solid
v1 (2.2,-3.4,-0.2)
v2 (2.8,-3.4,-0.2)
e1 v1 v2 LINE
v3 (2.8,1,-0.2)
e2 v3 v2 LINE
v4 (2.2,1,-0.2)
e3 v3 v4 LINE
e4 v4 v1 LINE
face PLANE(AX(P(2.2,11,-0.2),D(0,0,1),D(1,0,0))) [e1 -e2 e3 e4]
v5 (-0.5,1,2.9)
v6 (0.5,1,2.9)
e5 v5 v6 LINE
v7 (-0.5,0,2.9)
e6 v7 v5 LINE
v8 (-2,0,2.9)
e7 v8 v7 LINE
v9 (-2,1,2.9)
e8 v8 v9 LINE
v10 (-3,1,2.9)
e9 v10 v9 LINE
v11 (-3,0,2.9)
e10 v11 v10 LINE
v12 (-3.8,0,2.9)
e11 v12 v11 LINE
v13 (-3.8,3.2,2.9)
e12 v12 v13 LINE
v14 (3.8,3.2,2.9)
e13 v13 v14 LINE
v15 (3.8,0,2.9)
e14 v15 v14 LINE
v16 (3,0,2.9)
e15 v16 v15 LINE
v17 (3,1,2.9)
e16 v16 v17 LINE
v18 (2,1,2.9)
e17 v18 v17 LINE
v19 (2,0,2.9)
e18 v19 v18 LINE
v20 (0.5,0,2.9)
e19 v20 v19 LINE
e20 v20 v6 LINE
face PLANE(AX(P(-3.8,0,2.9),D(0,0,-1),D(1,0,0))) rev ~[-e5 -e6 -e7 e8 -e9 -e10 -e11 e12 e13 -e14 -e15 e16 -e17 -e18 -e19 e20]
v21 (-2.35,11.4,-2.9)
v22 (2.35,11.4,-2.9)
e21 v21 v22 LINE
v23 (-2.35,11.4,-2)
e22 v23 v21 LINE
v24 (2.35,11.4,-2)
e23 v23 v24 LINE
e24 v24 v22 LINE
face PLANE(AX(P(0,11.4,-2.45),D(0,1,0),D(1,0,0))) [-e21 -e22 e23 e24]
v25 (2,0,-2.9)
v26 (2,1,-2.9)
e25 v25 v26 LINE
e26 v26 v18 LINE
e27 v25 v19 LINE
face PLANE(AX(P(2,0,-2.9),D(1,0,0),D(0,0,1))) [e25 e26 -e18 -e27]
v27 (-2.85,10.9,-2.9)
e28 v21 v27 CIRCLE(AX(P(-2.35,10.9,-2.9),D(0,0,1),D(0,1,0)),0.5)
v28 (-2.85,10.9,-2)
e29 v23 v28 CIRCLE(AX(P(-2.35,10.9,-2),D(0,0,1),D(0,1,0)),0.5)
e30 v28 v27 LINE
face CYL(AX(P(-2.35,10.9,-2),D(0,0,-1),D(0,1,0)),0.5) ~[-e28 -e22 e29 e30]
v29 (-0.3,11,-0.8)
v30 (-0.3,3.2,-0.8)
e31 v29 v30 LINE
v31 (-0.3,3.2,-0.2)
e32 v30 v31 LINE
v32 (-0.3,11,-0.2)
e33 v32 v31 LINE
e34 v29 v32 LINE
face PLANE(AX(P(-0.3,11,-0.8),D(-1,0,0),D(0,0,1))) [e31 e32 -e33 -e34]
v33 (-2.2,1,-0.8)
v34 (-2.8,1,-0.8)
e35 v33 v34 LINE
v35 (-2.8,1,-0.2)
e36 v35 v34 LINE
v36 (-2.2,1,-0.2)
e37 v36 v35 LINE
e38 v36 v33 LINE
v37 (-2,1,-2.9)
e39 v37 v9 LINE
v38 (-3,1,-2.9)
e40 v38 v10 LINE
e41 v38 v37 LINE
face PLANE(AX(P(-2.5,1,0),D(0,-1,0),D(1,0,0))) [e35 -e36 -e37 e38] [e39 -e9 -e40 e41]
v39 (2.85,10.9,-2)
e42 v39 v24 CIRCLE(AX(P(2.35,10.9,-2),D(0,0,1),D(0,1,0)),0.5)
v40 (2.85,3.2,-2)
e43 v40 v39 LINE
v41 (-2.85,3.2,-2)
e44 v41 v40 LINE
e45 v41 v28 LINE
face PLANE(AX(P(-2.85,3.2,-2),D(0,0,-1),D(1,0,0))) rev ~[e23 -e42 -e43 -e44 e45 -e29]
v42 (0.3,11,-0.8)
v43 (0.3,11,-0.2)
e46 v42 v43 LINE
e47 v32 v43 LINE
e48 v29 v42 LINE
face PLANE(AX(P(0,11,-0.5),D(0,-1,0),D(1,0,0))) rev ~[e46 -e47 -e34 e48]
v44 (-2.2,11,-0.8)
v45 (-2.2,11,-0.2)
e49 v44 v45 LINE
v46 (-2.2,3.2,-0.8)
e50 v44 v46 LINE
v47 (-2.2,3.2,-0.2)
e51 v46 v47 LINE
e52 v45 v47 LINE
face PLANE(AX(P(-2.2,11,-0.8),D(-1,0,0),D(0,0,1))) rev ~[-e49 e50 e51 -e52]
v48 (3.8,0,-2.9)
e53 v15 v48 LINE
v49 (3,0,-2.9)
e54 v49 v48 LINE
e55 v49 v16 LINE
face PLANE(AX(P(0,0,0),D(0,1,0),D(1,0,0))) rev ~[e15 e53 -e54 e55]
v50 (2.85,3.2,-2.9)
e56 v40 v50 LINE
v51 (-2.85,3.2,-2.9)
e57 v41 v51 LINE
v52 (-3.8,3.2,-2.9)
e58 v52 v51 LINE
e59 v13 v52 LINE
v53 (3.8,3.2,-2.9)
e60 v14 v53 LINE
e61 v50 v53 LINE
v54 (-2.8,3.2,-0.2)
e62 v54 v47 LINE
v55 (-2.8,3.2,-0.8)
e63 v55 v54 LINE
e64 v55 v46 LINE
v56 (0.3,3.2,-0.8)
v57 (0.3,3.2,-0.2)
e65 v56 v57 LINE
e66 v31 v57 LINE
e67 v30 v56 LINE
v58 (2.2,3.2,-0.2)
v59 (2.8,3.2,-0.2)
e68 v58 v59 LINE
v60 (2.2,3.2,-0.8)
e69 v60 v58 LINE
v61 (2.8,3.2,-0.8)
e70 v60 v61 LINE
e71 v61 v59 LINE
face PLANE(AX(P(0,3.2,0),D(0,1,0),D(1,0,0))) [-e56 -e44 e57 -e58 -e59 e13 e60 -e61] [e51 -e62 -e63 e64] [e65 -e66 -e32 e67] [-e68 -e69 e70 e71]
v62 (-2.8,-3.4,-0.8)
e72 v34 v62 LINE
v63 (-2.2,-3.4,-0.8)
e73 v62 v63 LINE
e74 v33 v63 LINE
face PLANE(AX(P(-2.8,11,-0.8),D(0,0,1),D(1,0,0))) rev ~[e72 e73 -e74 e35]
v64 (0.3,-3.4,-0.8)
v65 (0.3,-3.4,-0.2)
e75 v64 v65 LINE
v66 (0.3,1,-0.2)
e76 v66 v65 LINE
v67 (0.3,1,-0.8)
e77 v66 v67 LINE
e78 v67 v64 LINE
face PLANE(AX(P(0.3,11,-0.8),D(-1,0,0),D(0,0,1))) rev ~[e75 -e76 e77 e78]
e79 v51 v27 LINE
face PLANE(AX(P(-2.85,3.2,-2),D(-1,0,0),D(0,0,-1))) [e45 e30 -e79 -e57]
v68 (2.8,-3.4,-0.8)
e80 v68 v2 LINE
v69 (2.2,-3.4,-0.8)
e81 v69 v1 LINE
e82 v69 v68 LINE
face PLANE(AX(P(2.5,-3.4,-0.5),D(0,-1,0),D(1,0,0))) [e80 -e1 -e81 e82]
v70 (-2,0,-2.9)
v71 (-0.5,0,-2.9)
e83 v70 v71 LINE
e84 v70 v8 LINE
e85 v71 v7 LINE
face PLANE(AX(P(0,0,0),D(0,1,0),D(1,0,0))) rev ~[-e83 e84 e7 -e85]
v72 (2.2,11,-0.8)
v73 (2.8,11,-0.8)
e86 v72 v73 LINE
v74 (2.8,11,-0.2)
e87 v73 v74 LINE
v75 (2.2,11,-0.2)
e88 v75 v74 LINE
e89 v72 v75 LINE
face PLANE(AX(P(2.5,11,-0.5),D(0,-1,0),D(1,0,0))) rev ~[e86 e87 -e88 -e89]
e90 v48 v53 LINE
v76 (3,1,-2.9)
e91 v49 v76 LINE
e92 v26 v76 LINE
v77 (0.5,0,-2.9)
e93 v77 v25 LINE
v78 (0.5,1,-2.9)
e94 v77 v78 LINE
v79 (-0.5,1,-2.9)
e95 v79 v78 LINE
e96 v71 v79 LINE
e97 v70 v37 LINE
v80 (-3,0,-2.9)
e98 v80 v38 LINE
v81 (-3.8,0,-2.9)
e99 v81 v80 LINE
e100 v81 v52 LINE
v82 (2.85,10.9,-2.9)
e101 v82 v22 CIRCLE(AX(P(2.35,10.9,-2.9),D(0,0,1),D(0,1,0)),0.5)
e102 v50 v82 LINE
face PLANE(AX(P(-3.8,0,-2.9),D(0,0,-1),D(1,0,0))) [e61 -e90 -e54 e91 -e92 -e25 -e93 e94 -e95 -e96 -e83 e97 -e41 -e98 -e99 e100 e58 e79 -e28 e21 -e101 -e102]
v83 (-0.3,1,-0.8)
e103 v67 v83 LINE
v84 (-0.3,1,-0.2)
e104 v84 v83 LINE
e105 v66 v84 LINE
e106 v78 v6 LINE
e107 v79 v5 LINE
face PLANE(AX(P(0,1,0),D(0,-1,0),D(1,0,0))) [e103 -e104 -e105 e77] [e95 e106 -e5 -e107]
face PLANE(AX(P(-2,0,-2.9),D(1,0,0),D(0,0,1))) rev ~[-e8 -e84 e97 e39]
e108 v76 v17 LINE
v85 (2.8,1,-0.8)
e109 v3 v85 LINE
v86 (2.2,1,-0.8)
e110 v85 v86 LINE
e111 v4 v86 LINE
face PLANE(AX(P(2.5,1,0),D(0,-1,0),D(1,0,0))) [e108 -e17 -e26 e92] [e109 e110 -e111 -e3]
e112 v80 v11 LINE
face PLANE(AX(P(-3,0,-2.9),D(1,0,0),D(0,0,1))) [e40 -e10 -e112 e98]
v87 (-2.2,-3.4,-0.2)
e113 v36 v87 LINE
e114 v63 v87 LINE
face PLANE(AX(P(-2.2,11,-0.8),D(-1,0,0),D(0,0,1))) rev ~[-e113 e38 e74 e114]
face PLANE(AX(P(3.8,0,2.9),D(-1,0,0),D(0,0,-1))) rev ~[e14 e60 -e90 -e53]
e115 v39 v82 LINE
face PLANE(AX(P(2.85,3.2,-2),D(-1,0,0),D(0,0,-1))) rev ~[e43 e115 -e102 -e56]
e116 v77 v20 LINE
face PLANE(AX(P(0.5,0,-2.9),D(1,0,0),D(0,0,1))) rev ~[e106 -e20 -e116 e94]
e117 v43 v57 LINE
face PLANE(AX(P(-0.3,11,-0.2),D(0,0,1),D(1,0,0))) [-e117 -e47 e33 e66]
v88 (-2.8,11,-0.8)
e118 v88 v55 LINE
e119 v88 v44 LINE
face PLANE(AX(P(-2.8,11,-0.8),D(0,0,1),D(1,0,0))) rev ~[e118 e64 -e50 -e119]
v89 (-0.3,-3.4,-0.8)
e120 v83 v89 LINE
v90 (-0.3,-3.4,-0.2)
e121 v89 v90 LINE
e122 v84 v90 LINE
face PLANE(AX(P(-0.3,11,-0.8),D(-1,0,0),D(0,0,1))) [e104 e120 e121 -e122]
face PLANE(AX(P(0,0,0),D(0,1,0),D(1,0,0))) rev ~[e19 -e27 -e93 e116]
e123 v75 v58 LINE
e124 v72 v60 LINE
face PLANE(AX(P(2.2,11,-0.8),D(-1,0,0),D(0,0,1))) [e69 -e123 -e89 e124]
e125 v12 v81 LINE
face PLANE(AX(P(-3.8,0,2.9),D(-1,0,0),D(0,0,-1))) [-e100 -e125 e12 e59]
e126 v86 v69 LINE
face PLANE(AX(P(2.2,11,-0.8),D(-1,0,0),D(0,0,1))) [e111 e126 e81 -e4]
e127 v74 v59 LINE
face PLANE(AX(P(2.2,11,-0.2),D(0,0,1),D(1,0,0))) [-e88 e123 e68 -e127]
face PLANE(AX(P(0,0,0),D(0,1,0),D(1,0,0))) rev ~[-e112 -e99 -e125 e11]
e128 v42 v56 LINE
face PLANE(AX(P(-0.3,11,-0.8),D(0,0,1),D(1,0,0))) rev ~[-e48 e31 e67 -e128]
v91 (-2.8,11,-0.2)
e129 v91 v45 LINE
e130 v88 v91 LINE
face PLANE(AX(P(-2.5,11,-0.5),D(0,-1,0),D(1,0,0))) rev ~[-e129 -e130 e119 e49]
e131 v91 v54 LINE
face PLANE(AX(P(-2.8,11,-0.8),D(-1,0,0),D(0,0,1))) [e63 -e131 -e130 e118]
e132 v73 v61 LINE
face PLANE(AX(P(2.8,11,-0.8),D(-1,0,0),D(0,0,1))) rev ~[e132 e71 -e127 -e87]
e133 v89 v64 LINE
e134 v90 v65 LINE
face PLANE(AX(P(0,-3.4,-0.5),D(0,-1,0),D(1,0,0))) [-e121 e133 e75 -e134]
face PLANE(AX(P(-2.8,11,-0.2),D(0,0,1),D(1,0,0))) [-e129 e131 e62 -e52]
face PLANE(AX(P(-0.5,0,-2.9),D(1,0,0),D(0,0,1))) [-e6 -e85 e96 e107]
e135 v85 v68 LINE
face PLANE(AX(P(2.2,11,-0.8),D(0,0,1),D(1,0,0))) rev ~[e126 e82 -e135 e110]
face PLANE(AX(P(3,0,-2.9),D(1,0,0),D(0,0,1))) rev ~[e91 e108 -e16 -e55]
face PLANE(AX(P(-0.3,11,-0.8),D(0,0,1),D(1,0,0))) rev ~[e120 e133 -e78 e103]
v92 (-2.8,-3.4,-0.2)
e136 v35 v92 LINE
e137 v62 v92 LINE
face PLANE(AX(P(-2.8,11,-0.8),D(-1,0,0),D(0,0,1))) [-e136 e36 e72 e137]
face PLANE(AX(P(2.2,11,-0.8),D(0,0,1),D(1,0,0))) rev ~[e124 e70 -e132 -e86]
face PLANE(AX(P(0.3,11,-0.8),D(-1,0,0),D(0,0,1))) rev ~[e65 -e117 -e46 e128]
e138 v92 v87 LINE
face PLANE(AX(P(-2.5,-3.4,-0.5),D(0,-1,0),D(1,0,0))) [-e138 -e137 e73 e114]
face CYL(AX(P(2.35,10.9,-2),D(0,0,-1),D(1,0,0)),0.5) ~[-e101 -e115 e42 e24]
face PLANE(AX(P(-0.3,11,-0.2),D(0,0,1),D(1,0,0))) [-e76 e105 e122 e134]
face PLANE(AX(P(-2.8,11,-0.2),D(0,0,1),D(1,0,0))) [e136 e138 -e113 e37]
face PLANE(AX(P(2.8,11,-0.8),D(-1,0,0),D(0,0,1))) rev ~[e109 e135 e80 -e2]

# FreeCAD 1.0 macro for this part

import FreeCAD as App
import Part
import Sketcher


def edges_at(feature, points):
    """Names of the edges that pass closest to the given points."""
    edges = feature.Shape.Edges
    near = lambda p: min(range(len(edges)), key=lambda i: edges[i].distToShape(Part.Vertex(*p))[0])
    return sorted({f"Edge{near(p) + 1}" for p in points})


def add_polygon(sketch, points):
    """Adds a closed chain of lines whose ends are joined by coincident constraints."""
    first, n = sketch.GeometryCount, len(points)
    for a, b in zip(points, points[1:] + points[:1]):
        sketch.addGeometry(Part.LineSegment(App.Vector(*a, 0), App.Vector(*b, 0)), False)
    for i in range(n):
        sketch.addConstraint(Sketcher.Constraint("Coincident", first + i, 2, first + (i + 1) % n, 1))

doc = App.newDocument("Part")
body = doc.addObject("PartDesign::Body", "Body")

sketch1 = doc.addObject("Sketcher::SketchObject", "Sketch")
body.addObject(sketch1)
sketch1.AttachmentSupport = (doc.XZ_Plane, [""])
sketch1.MapMode = "FlatFace"
add_polygon(sketch1, [(-3.8, -2.9), (-3.8, 2.9), (3.8, 2.9), (3.8, -2.9)])
sketch1.addConstraint([
    Sketcher.Constraint("Vertical", 0),
    Sketcher.Constraint("Horizontal", 1),
    Sketcher.Constraint("Vertical", 2),
    Sketcher.Constraint("Horizontal", 3),
    Sketcher.Constraint("Symmetric", 0, 2, 2, 2, -1, 1),
    Sketcher.Constraint("DistanceX", 1, 1, 1, 2, 7.6),
    Sketcher.Constraint("DistanceY", 0, 1, 0, 2, 5.8),
])
pad1 = doc.addObject("PartDesign::Pad", "Pad")
body.addObject(pad1)
pad1.Profile = sketch1
pad1.Length = 3.2
pad1.Reversed = True

sketch2 = doc.addObject("Sketcher::SketchObject", "Sketch001")
body.addObject(sketch2)
sketch2.AttachmentSupport = (doc.XZ_Plane, [""])
sketch2.MapMode = "FlatFace"
sketch2.AttachmentOffset = App.Placement(App.Vector(0, 0, -3.2), App.Rotation())
add_polygon(sketch2, [(-2.85, -2.9), (-2.85, -2), (2.85, -2), (2.85, -2.9)])
sketch2.addConstraint([
    Sketcher.Constraint("Vertical", 0),
    Sketcher.Constraint("Horizontal", 1),
    Sketcher.Constraint("Vertical", 2),
    Sketcher.Constraint("Horizontal", 3),
    Sketcher.Constraint("DistanceX", 1, 1, 1, 2, 5.7),
    Sketcher.Constraint("DistanceY", 0, 1, 0, 2, 0.9),
    Sketcher.Constraint("DistanceY", 0, 2, -1, 1, 2.0),
    Sketcher.Constraint("DistanceX", 0, 2, -1, 1, 2.85),
])
pad2 = doc.addObject("PartDesign::Pad", "Pad001")
body.addObject(pad2)
pad2.Profile = sketch2
pad2.Length = 8.2
pad2.Reversed = True
doc.recompute()

fillet = doc.addObject("PartDesign::Fillet", "Fillet")
body.addObject(fillet)
fillet.Base = (pad2, edges_at(pad2, [(2.85, 11.4, -2.45)]))
fillet.Radius = 0.5
doc.recompute()

fillet2 = doc.addObject("PartDesign::Fillet", "Fillet001")
body.addObject(fillet2)
fillet2.Base = (fillet, edges_at(fillet, [(-2.85, 11.4, -2.45)]))
fillet2.Radius = 0.5

sketch3 = doc.addObject("Sketcher::SketchObject", "Sketch002")
body.addObject(sketch3)
sketch3.AttachmentSupport = (doc.XZ_Plane, [""])
sketch3.MapMode = "FlatFace"
add_polygon(sketch3, [(-3, 2.9), (-3, -2.9), (-2, -2.9), (-2, 2.9)])
add_polygon(sketch3, [(-0.5, 2.9), (-0.5, -2.9), (0.5, -2.9), (0.5, 2.9)])
add_polygon(sketch3, [(2, 2.9), (2, -2.9), (3, -2.9), (3, 2.9)])
sketch3.addConstraint([
    Sketcher.Constraint("Vertical", 0),
    Sketcher.Constraint("Horizontal", 1),
    Sketcher.Constraint("Vertical", 2),
    Sketcher.Constraint("Horizontal", 3),
    Sketcher.Constraint("Vertical", 4),
    Sketcher.Constraint("Horizontal", 5),
    Sketcher.Constraint("Vertical", 6),
    Sketcher.Constraint("Horizontal", 7),
    Sketcher.Constraint("Vertical", 8),
    Sketcher.Constraint("Horizontal", 9),
    Sketcher.Constraint("Vertical", 10),
    Sketcher.Constraint("Horizontal", 11),
    Sketcher.Constraint("Symmetric", 4, 2, 6, 2, -1, 1),
    Sketcher.Constraint("Symmetric", 2, 2, 8, 2, -1, 1),
    Sketcher.Constraint("Symmetric", 0, 2, 10, 2, -1, 1),
    Sketcher.Constraint("Horizontal", 1, 2, 4, 2),
    Sketcher.Constraint("Horizontal", 3, 2, 6, 2),
    Sketcher.Constraint("Equal", 3, 5),
    Sketcher.Constraint("DistanceX", 1, 1, 1, 2, 1.0),
    Sketcher.Constraint("DistanceY", 0, 2, 0, 1, 5.8),
    Sketcher.Constraint("DistanceX", 0, 2, -1, 1, 3.0),
])
pocket1 = doc.addObject("PartDesign::Pocket", "Pocket")
body.addObject(pocket1)
pocket1.Profile = sketch3
pocket1.Length = 1

sketch4 = doc.addObject("Sketcher::SketchObject", "Sketch003")
body.addObject(sketch4)
sketch4.AttachmentSupport = (doc.XZ_Plane, [""])
sketch4.MapMode = "FlatFace"
sketch4.AttachmentOffset = App.Placement(App.Vector(0, 0, -1), App.Rotation())
add_polygon(sketch4, [(-2.8, -0.2), (-2.8, -0.8), (-2.2, -0.8), (-2.2, -0.2)])
add_polygon(sketch4, [(-0.3, -0.2), (-0.3, -0.8), (0.3, -0.8), (0.3, -0.2)])
add_polygon(sketch4, [(2.2, -0.2), (2.2, -0.8), (2.8, -0.8), (2.8, -0.2)])
sketch4.addConstraint([
    Sketcher.Constraint("Vertical", 0),
    Sketcher.Constraint("Horizontal", 1),
    Sketcher.Constraint("Vertical", 2),
    Sketcher.Constraint("Horizontal", 3),
    Sketcher.Constraint("Vertical", 4),
    Sketcher.Constraint("Horizontal", 5),
    Sketcher.Constraint("Vertical", 6),
    Sketcher.Constraint("Horizontal", 7),
    Sketcher.Constraint("Vertical", 8),
    Sketcher.Constraint("Horizontal", 9),
    Sketcher.Constraint("Vertical", 10),
    Sketcher.Constraint("Horizontal", 11),
    Sketcher.Constraint("Symmetric", 1, 2, 8, 2, -2),
    Sketcher.Constraint("Symmetric", 3, 2, 10, 2, -2),
    Sketcher.Constraint("Horizontal", 1, 2, 4, 2),
    Sketcher.Constraint("Horizontal", 3, 2, 6, 2),
    Sketcher.Constraint("Equal", 3, 5),
    Sketcher.Constraint("Equal", 11, 0),
    Sketcher.Constraint("DistanceX", 1, 1, 1, 2, 0.6),
    Sketcher.Constraint("DistanceX", 0, 2, -1, 1, 2.8),
    Sketcher.Constraint("DistanceY", 0, 2, -1, 1, 0.8),
    Sketcher.Constraint("DistanceX", 4, 2, -1, 1, 0.3),
])
pad3 = doc.addObject("PartDesign::Pad", "Pad002")
body.addObject(pad3)
pad3.Profile = sketch4
pad3.Type = "TwoLengths"
pad3.Length = 4.4
pad3.Length2 = 10

doc.recompute()
